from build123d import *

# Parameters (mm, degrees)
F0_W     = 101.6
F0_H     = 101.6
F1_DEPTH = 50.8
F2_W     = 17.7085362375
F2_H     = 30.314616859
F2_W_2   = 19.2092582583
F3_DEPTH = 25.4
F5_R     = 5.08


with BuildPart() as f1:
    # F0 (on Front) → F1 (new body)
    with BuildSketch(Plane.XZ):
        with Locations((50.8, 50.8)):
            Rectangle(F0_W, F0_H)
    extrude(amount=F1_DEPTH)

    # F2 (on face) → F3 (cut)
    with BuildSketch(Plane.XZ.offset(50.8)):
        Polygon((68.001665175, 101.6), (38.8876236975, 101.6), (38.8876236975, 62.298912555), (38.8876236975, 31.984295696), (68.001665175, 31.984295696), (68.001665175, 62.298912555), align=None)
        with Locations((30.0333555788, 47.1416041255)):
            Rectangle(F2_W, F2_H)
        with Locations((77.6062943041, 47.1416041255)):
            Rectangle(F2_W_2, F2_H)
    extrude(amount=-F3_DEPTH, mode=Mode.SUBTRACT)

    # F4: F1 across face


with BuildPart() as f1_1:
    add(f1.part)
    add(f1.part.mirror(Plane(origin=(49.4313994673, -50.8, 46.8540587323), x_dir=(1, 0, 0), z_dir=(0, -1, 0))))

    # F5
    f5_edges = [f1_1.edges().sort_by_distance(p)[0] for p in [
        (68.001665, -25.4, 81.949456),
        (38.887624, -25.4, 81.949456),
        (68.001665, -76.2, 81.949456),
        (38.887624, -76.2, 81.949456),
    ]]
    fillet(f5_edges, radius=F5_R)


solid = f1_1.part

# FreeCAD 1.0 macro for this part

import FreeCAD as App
import Part
import Sketcher
from FreeCAD import Vector
Q = App.Units.Quantity


def edges_at(feature, points):
    """Names of the edges that pass closest to the given points."""
    edges = feature.Shape.Edges
    near = lambda p: min(range(len(edges)), key=lambda i: edges[i].distToShape(Part.Vertex(*p))[0])
    return sorted({f"Edge{near(p) + 1}" for p in points})


def add_polygon(sketch, points):
    """Adds a closed chain of lines whose ends are joined by coincident constraints."""
    first, n = sketch.GeometryCount, len(points)
    for a, b in zip(points, points[1:] + points[:1]):
        sketch.addGeometry(Part.LineSegment(App.Vector(*a, 0), App.Vector(*b, 0)), False)
    for i in range(n):
        sketch.addConstraint(Sketcher.Constraint("Coincident", first + i, 2, first + (i + 1) % n, 1))

doc = App.newDocument("Part")
body = doc.addObject("PartDesign::Body", "Body")

# Sketch on XZ plane
sketch1 = body.newObject("Sketcher::SketchObject", "Sketch")
sketch1.AttachmentSupport = (doc.getObject("XZ_Plane"), [""])
sketch1.MapMode = "FlatFace"
add_polygon(sketch1, [(0, 102), (0, 0), (102, 0), (102, 102)])  # lines 0-3
sketch1.addConstraint([
    Sketcher.Constraint("Vertical", 0),
    Sketcher.Constraint("Horizontal", 1),
    Sketcher.Constraint("Vertical", 2),
    Sketcher.Constraint("Horizontal", 3),
    Sketcher.Constraint("Coincident", 0, 2, -1, 1),
    Sketcher.Constraint("Equal", 3, 0),
    Sketcher.Constraint("DistanceX", 1, 1, 1, 2, Q("4 in")),
])
pad1 = body.newObject("PartDesign::Pad", "Pad")
pad1.Profile = sketch1
pad1.Length = Q("2 in")

# Sketch on XZ plane
sketch2 = body.newObject("Sketcher::SketchObject", "Sketch001")
sketch2.AttachmentSupport = (doc.getObject("XZ_Plane"), [""])
sketch2.MapMode = "FlatFace"
sketch2.AttachmentOffset = App.Placement(Vector(0, 0, 2 * 25.4), App.Rotation())
add_polygon(sketch2, [(68, 102), (39, 102), (39, 62), (21, 62), (21, 32), (87, 32), (87, 62), (68, 62)])  # lines 0-7
sketch2.addConstraint([
    Sketcher.Constraint("Horizontal", 0),
    Sketcher.Constraint("Vertical", 1),
    Sketcher.Constraint("Horizontal", 2),
    Sketcher.Constraint("Vertical", 3),
    Sketcher.Constraint("Horizontal", 4),
    Sketcher.Constraint("Vertical", 5),
    Sketcher.Constraint("Horizontal", 6),
    Sketcher.Constraint("Vertical", 7),
    Sketcher.Constraint("Horizontal", 2, 2, 5, 2),
    Sketcher.Constraint("DistanceY", -1, 1, 0, 2, Q("4 in")),
    Sketcher.Constraint("DistanceX", 0, 2, 0, 1, 29.114041),
    Sketcher.Constraint("DistanceX", 6, 2, 6, 1, 19.209258),
    Sketcher.Constraint("DistanceX", 2, 2, 2, 1, 17.708536),
    Sketcher.Constraint("DistanceY", 1, 2, 1, 1, 39.301087),
    Sketcher.Constraint("DistanceY", 3, 2, 3, 1, 30.314617),
    Sketcher.Constraint("DistanceX", -1, 1, 0, 2, 38.887624),
])
pocket1 = body.newObject("PartDesign::Pocket", "Pocket")
pocket1.Profile = sketch2
pocket1.Length = Q("1 in")
body2 = doc.addObject("PartDesign::Body", "Body001")
doc.recompute()

body2.BaseFeature = body
doc.recompute()

mirroring = doc.addObject("Part::Mirroring", "Mirroring")
mirroring.Source = body
mirroring.Base = Vector(49.431399, -50.8, 46.854059)
mirroring.Normal = Vector(0, -1, 0)
body3 = doc.addObject("PartDesign::Body", "Body002")
body3.BaseFeature = mirroring
boolean = body2.newObject("PartDesign::Boolean", "Boolean")
boolean.Type = "Fuse"
boolean.addObjects([body3])
doc.recompute()

fillet = body2.newObject("PartDesign::Fillet", "Fillet")
fillet.Base = (boolean, edges_at(boolean, [
    (68.002, -25.4, 81.949),
    (38.888, -25.4, 81.949),
    (68.002, -76.2, 81.949),
    (38.888, -76.2, 81.949),
]))
fillet.Radius = Q("0.2 in")
mirroring.Visibility = False

doc.recompute()
